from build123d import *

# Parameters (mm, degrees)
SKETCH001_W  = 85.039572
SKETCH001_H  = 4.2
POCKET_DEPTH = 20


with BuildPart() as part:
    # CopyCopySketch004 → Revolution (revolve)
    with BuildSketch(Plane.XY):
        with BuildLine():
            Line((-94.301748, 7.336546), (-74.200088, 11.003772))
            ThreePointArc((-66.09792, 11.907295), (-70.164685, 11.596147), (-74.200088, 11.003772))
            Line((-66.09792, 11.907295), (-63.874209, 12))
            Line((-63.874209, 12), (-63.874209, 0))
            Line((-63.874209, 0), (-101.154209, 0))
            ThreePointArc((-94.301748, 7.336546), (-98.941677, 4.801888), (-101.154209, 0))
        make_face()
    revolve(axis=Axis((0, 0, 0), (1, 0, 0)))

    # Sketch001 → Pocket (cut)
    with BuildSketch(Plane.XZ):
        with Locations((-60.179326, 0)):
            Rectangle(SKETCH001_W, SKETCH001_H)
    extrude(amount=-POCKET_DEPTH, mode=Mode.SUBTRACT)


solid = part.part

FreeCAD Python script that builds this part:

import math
import FreeCAD as App
import Part
import Sketcher
from FreeCAD import Vector
Q = App.Units.Quantity

doc = App.newDocument("Part")
body = doc.addObject("PartDesign::Body", "Body")

# Sketch on XY plane
sketch1 = doc.addObject("Sketcher::SketchObject", "Sketch")
body.addObject(sketch1)
sketch1.AttachmentSupport = (doc.XY_Plane, [""])
sketch1.MapMode = "FlatFace"
sketch1.addGeometry(Part.LineSegment(Vector(-74.200088, 11.003772, 0), Vector(-94.301748, 7.336546, 0)), False)
sketch1.addGeometry(Part.ArcOfCircle(Part.Circle(Vector(-92.791347, -0.942627, 0), Vector(0, 0, 1), 8.415819), math.radians(100.338989), math.radians(173.569004)), False)
sketch1.addGeometry(Part.LineSegment(Vector(-101.154209, 0, 0), Vector(-63.874209, 0, 0)), False)
sketch1.addGeometry(Part.LineSegment(Vector(-63.874209, 0, 0), Vector(-63.874209, 12, 0)), False)
sketch1.addGeometry(Part.LineSegment(Vector(-63.874209, 12, 0), Vector(-66.09792, 11.907295, 0)), False)
sketch1.addGeometry(Part.ArcOfCircle(Part.Circle(Vector(-63.649207, -46.830141, 0), Vector(0, 0, 1), 58.788456), math.radians(92.387229), math.radians(100.339006)), False)
sketch1.addConstraint(Sketcher.Constraint("Coincident", 0, 2, 1, 1))
sketch1.addConstraint(Sketcher.Constraint("Coincident", 1, 2, 2, 1))
sketch1.addConstraint(Sketcher.Constraint("Coincident", 2, 2, 3, 1))
sketch1.addConstraint(Sketcher.Constraint("Coincident", 3, 2, 4, 1))
sketch1.addConstraint(Sketcher.Constraint("Coincident", 4, 2, 5, 1))
sketch1.addConstraint(Sketcher.Constraint("Coincident", 5, 2, 0, 1))
sketch1.addConstraint(Sketcher.Constraint("Horizontal", 2))
sketch1.addConstraint(Sketcher.Constraint("Vertical", 3))
sketch1.addConstraint(Sketcher.Constraint("PointOnObject", 1, 2, -1))
sketch1.addConstraint(Sketcher.Constraint("DistanceY", 3, 1, 3, 2, Q("12 mm")))
sketch1.addConstraint(Sketcher.Constraint("DistanceX", 2, 1, 2, 2, Q("37.28 mm")))
sketch1.addConstraint(Sketcher.Constraint("Radius", 1, Q("8.415819 mm")))
sketch1.addConstraint(Sketcher.Constraint("Radius", 5, Q("58.788456 mm")))
sketch1.addConstraint(Sketcher.Constraint("DistanceX", 0, 2, 1, 3, Q("1.510401 mm")))
sketch1.addConstraint(Sketcher.Constraint("DistanceY", 1, 3, 5, 2, Q("11.946399 mm")))
sketch1.addConstraint(Sketcher.Constraint("DistanceY", 5, 3, -1, 1, Q("46.830141 mm")))
sketch1.addConstraint(Sketcher.Constraint("DistanceX", 0, 2, -1, 1, Q("94.301748 mm")))
sketch1.addConstraint(Sketcher.Constraint("DistanceX", 1, 2, -1, 1, Q("101.154209 mm")))
sketch1.addConstraint(Sketcher.Constraint("DistanceX", 4, 2, -1, 1, Q("66.09792 mm")))
sketch1.addConstraint(Sketcher.Constraint("DistanceX", 5, 2, -1, 1, Q("74.200088 mm")))
revolution = doc.addObject("PartDesign::Revolution", "Revolution")
body.addObject(revolution)
revolution.Profile = sketch1
revolution.ReferenceAxis = (sketch1, ["H_Axis"])
revolution.Angle = 360

# Sketch on XZ plane
sketch2 = doc.addObject("Sketcher::SketchObject", "Sketch001")
body.addObject(sketch2)
sketch2.AttachmentSupport = (doc.XZ_Plane, [""])
sketch2.MapMode = "FlatFace"
sketch2.addGeometry(Part.LineSegment(Vector(-102.7, 2.1, 0), Vector(-102.7, -2.1, 0)), False)
sketch2.addGeometry(Part.LineSegment(Vector(-102.7, -2.1, 0), Vector(-17.7, -2.1, 0)), False)
sketch2.addGeometry(Part.LineSegment(Vector(-17.7, -2.1, 0), Vector(-17.7, 2.1, 0)), False)
sketch2.addGeometry(Part.LineSegment(Vector(-17.7, 2.1, 0), Vector(-102.7, 2.1, 0)), False)
sketch2.addConstraint(Sketcher.Constraint("Coincident", 0, 2, 1, 1))
sketch2.addConstraint(Sketcher.Constraint("Coincident", 1, 2, 2, 1))
sketch2.addConstraint(Sketcher.Constraint("Coincident", 2, 2, 3, 1))
sketch2.addConstraint(Sketcher.Constraint("Coincident", 3, 2, 0, 1))
sketch2.addConstraint(Sketcher.Constraint("Vertical", 0))
sketch2.addConstraint(Sketcher.Constraint("Horizontal", 1))
sketch2.addConstraint(Sketcher.Constraint("Vertical", 2))
sketch2.addConstraint(Sketcher.Constraint("Horizontal", 3))
sketch2.addConstraint(Sketcher.Constraint("DistanceY", 0, 2, 0, 1, Q("4.2 mm")))
sketch2.addConstraint(Sketcher.Constraint("DistanceY", 0, 2, -1, 1, Q("2.1 mm")))
sketch2.addConstraint(Sketcher.Constraint("DistanceX", 1, 1, 1, 2, Q("85.039572 mm")))
sketch2.addConstraint(Sketcher.Constraint("DistanceX", 0, 2, -1, 1, Q("102.699112 mm")))
pocket1 = doc.addObject("PartDesign::Pocket", "Pocket")
body.addObject(pocket1)
pocket1.Profile = sketch2
pocket1.Length = 20

doc.recompute()
